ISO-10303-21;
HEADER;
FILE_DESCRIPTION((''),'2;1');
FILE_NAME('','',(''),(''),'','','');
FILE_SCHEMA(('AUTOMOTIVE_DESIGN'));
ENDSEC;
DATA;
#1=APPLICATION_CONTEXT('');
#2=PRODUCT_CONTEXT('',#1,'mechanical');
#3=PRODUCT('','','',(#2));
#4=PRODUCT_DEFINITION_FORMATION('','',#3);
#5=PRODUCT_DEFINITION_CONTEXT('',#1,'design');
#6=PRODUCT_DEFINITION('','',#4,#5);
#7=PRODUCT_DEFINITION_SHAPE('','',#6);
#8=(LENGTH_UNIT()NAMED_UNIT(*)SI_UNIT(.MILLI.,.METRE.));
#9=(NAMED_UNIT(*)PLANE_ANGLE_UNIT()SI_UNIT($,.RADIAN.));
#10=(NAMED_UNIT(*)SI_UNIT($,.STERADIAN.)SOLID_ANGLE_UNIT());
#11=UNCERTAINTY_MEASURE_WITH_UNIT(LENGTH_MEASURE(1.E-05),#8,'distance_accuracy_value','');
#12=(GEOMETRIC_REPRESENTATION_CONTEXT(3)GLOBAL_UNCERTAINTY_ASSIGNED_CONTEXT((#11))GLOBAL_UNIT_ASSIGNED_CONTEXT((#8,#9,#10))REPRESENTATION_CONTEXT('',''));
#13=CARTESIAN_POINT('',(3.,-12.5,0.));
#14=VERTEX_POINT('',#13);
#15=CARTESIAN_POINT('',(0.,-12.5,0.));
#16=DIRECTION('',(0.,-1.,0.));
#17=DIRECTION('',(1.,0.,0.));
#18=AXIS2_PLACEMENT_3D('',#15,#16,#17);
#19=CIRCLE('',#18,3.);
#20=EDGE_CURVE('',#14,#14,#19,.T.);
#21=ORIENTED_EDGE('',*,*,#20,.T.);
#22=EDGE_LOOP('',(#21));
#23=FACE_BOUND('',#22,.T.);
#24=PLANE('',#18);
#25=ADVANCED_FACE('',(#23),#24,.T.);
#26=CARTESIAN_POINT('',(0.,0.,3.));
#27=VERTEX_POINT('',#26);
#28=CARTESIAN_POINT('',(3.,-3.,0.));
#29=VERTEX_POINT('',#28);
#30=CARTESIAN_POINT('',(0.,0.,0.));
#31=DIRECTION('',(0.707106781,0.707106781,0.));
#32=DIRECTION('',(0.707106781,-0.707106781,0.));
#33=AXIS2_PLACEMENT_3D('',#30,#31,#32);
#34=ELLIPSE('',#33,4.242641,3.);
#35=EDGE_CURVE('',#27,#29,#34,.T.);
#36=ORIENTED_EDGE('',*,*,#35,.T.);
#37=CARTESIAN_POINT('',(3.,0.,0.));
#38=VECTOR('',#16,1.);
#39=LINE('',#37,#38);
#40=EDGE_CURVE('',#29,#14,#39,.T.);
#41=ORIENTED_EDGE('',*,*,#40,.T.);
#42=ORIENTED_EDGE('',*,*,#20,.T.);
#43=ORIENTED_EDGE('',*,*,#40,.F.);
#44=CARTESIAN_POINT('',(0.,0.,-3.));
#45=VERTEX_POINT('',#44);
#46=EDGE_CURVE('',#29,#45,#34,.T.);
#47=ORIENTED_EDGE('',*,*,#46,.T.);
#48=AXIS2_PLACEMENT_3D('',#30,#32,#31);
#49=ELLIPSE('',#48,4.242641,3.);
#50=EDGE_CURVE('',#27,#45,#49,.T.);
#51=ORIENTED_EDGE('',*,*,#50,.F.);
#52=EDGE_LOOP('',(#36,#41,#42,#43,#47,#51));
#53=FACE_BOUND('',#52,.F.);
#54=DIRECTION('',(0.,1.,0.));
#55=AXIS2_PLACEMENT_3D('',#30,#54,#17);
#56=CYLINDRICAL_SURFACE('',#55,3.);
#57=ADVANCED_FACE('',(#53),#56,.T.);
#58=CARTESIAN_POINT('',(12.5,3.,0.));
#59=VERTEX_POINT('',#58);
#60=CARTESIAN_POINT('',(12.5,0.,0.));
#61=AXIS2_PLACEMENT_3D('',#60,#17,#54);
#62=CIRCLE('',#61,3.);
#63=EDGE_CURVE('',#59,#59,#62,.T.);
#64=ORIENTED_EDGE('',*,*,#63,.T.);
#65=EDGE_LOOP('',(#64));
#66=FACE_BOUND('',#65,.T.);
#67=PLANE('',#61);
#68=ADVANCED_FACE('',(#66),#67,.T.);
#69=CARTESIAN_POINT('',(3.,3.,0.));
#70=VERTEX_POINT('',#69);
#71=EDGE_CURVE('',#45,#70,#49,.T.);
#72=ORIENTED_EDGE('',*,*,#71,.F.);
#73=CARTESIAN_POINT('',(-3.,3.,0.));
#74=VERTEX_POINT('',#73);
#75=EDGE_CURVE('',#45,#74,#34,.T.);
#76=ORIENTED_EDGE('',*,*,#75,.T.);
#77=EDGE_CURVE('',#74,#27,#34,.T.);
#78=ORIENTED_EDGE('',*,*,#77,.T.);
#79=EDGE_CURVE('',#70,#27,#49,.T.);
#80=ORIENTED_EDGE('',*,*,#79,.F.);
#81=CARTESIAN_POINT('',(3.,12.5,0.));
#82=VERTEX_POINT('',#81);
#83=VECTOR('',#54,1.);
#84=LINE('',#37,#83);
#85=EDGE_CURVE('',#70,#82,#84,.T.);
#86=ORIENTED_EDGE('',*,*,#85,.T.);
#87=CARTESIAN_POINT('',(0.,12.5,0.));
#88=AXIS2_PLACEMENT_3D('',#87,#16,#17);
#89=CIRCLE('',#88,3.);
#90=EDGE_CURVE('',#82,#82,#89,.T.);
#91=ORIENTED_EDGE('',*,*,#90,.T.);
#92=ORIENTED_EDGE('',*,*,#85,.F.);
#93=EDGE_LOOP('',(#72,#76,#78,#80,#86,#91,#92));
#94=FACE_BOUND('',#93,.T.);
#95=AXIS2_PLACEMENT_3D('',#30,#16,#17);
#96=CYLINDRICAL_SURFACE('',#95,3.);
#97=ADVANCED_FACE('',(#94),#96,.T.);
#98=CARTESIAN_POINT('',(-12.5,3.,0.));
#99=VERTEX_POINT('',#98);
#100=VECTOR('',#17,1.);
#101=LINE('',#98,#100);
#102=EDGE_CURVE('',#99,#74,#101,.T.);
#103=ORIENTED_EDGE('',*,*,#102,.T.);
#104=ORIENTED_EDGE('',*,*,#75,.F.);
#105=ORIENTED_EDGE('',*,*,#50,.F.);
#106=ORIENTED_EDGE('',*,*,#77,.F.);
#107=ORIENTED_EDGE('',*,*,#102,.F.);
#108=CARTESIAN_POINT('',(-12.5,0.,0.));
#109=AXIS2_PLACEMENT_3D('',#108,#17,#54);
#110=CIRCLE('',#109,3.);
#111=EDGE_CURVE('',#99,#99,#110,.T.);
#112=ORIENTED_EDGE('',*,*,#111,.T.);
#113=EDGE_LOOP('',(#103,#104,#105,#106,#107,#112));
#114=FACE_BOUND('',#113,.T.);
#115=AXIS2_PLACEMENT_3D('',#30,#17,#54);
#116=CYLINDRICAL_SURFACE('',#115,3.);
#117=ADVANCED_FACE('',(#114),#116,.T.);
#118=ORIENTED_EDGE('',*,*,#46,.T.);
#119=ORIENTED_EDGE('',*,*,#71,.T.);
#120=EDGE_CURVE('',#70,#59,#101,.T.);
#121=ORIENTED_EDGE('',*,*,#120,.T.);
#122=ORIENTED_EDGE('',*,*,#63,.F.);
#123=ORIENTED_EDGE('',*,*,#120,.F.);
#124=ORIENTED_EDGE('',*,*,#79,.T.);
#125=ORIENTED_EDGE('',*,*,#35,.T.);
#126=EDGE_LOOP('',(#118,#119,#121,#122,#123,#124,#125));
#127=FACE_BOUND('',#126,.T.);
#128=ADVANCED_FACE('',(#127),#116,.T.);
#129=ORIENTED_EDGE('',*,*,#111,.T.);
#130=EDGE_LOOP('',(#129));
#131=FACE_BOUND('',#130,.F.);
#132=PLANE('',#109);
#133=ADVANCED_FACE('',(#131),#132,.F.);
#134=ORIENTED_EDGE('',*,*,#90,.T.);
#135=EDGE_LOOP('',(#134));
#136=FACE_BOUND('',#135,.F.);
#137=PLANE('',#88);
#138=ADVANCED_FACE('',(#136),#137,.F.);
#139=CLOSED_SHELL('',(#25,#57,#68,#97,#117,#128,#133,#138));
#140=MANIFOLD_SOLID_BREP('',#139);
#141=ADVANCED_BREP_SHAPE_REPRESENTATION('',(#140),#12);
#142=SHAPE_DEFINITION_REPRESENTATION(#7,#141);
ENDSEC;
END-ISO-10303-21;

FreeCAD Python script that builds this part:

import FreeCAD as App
import Part
import Sketcher

V = App.Vector
Q = App.Units.Quantity

doc = App.newDocument("Part")
body = doc.addObject("PartDesign::Body", "Body")

sketch1 = body.newObject("Sketcher::SketchObject", "Sketch")
sketch1.AttachmentSupport = (doc.getObject("YZ_Plane"), [""])
sketch1.MapMode = "FlatFace"
sketch1.addGeometry(Part.Circle(V(0, 0, 0), V(0, 0, 1), 3), False)
sketch1.addConstraint(Sketcher.Constraint("Coincident", 0, 3, -1, 1))
sketch1.addConstraint(Sketcher.Constraint("Diameter", 0, Q("6 mm")))
pad1 = body.newObject("PartDesign::Pad", "Pad")
pad1.Profile = sketch1
pad1.Type = "TwoLengths"
pad1.Length = 12.5
pad1.Length2 = 12.5

sketch2 = body.newObject("Sketcher::SketchObject", "Sketch001")
sketch2.AttachmentSupport = (doc.getObject("XZ_Plane"), [""])
sketch2.MapMode = "FlatFace"
sketch2.addGeometry(Part.Circle(V(0, 0, 0), V(0, 0, 1), 3), False)
sketch2.addConstraint(Sketcher.Constraint("Coincident", 0, 3, -1, 1))
sketch2.addConstraint(Sketcher.Constraint("Diameter", 0, Q("6 mm")))
pad2 = body.newObject("PartDesign::Pad", "Pad001")
pad2.Profile = sketch2
pad2.Type = "TwoLengths"
pad2.Length = 12.5
pad2.Length2 = 12.5

doc.recompute()
